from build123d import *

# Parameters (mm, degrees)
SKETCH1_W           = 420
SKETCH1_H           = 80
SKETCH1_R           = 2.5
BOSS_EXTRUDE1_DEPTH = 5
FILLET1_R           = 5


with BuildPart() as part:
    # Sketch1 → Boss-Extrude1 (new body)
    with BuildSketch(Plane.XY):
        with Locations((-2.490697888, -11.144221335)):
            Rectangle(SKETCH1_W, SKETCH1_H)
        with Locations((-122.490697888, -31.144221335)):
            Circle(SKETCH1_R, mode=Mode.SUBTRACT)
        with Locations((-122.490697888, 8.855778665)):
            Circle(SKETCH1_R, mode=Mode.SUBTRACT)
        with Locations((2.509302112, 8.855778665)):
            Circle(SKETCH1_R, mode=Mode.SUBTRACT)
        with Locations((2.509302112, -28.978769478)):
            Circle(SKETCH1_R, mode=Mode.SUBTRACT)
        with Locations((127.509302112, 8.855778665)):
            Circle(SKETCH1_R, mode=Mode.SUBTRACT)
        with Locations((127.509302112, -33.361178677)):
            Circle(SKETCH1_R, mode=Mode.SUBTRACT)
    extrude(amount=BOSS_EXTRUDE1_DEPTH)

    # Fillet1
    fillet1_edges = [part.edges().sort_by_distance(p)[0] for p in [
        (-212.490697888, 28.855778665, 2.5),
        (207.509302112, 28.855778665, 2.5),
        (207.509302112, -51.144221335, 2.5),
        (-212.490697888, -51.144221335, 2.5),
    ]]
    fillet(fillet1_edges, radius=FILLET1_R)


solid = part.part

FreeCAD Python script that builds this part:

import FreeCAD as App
import Part
import Sketcher

V = App.Vector
Q = App.Units.Quantity


def edges_at(feature, points):
    """Names of the edges that pass closest to the given points."""
    edges = feature.Shape.Edges
    near = lambda p: min(range(len(edges)), key=lambda i: edges[i].distToShape(Part.Vertex(*p))[0])
    return sorted({f"Edge{near(p) + 1}" for p in points})


def add_polygon(sketch, points):
    """Adds a closed chain of lines whose ends are joined by coincident constraints."""
    first, n = sketch.GeometryCount, len(points)
    for a, b in zip(points, points[1:] + points[:1]):
        sketch.addGeometry(Part.LineSegment(App.Vector(*a, 0), App.Vector(*b, 0)), False)
    for i in range(n):
        sketch.addConstraint(Sketcher.Constraint("Coincident", first + i, 2, first + (i + 1) % n, 1))

doc = App.newDocument("Part")
params = doc.addObject("Spreadsheet::Sheet", "Params")
for row, (alias, value) in enumerate([
    ("sketch1_diameter", "5 mm"),
    ("sketch1_width", "420 mm"),
    ("sketch1_height", "80 mm"),
    ("pad1_length", "5 mm"),
    ("fillet_radius", "5 mm"),
], start=1):
    params.set(f"A{row}", alias)
    params.set(f"B{row}", "=" + value)
    params.setAlias(f"B{row}", alias)

body = doc.addObject("PartDesign::Body", "Body")

sketch1 = body.newObject("Sketcher::SketchObject", "Sketch")
sketch1.AttachmentSupport = (doc.getObject("XY_Plane"), [""])
sketch1.MapMode = "FlatFace"
add_polygon(sketch1, [(-212.5, 28.9), (-212.5, -51.1), (207.5, -51.1), (207.5, 28.9)])
sketch1.addGeometry(Part.Circle(V(-122.5, -31.1, 0), V(0, 0, 1), 2.5), False)
sketch1.addGeometry(Part.Circle(V(2.5, -29, 0), V(0, 0, 1), 2.5), False)
sketch1.addGeometry(Part.Circle(V(127.5, -33.4, 0), V(0, 0, 1), 2.5), False)
sketch1.addGeometry(Part.Circle(V(-122.5, 8.9, 0), V(0, 0, 1), 2.5), False)
sketch1.addGeometry(Part.Circle(V(2.5, 8.9, 0), V(0, 0, 1), 2.5), False)
sketch1.addGeometry(Part.Circle(V(127.5, 8.9, 0), V(0, 0, 1), 2.5), False)
sketch1.addConstraint([
    Sketcher.Constraint("Vertical", 0),
    Sketcher.Constraint("Horizontal", 1),
    Sketcher.Constraint("Vertical", 2),
    Sketcher.Constraint("Horizontal", 3),
    Sketcher.Constraint("Equal", 4, 5),
    Sketcher.Constraint("Equal", 5, 6),
    Sketcher.Constraint("Equal", 6, 7),
    Sketcher.Constraint("Equal", 7, 8),
    Sketcher.Constraint("Equal", 8, 9),
    Sketcher.Constraint("Horizontal", 7, 3, 8, 3),
    Sketcher.Constraint("Horizontal", 8, 3, 9, 3),
    Sketcher.Constraint("Vertical", 4, 3, 7, 3),
    Sketcher.Constraint("Vertical", 5, 3, 8, 3),
    Sketcher.Constraint("Vertical", 6, 3, 9, 3),
    Sketcher.Constraint("Diameter", 4, Q("5 mm")),
    Sketcher.Constraint("DistanceX", 1, 1, 1, 2, Q("420 mm")),
    Sketcher.Constraint("DistanceY", 0, 2, 0, 1, Q("80 mm")),
    Sketcher.Constraint("DistanceX", 4, 3, 5, 3, Q("125 mm")),
    Sketcher.Constraint("DistanceX", 5, 3, 6, 3, Q("125 mm")),
    Sketcher.Constraint("DistanceY", 4, 3, 7, 3, Q("40 mm")),
    Sketcher.Constraint("DistanceX", 0, 2, 4, 3, Q("90 mm")),
    Sketcher.Constraint("DistanceY", 0, 2, 4, 3, Q("20 mm")),
    Sketcher.Constraint("DistanceY", 4, 3, -1, 1, Q("31.144221 mm")),
    Sketcher.Constraint("DistanceY", 5, 3, -1, 1, Q("28.978769 mm")),
    Sketcher.Constraint("DistanceY", 6, 3, -1, 1, Q("33.361179 mm")),
    Sketcher.Constraint("DistanceX", 4, 3, -1, 1, Q("122.490698 mm")),
])
sketch1.setExpression("Constraints[18]", "Params.sketch1_diameter")
sketch1.setExpression("Constraints[19]", "Params.sketch1_width")
sketch1.setExpression("Constraints[20]", "Params.sketch1_height")
pad1 = body.newObject("PartDesign::Pad", "Pad")
pad1.Profile = sketch1
pad1.setExpression("Length", "Params.pad1_length")
doc.recompute()

fillet = body.newObject("PartDesign::Fillet", "Fillet")
fillet.Base = (pad1, edges_at(pad1, [
    (-212.491, 28.856, 2.5),
    (207.509, 28.856, 2.5),
    (207.509, -51.144, 2.5),
    (-212.491, -51.144, 2.5),
]))
fillet.setExpression("Radius", "Params.fillet_radius")

doc.recompute()
